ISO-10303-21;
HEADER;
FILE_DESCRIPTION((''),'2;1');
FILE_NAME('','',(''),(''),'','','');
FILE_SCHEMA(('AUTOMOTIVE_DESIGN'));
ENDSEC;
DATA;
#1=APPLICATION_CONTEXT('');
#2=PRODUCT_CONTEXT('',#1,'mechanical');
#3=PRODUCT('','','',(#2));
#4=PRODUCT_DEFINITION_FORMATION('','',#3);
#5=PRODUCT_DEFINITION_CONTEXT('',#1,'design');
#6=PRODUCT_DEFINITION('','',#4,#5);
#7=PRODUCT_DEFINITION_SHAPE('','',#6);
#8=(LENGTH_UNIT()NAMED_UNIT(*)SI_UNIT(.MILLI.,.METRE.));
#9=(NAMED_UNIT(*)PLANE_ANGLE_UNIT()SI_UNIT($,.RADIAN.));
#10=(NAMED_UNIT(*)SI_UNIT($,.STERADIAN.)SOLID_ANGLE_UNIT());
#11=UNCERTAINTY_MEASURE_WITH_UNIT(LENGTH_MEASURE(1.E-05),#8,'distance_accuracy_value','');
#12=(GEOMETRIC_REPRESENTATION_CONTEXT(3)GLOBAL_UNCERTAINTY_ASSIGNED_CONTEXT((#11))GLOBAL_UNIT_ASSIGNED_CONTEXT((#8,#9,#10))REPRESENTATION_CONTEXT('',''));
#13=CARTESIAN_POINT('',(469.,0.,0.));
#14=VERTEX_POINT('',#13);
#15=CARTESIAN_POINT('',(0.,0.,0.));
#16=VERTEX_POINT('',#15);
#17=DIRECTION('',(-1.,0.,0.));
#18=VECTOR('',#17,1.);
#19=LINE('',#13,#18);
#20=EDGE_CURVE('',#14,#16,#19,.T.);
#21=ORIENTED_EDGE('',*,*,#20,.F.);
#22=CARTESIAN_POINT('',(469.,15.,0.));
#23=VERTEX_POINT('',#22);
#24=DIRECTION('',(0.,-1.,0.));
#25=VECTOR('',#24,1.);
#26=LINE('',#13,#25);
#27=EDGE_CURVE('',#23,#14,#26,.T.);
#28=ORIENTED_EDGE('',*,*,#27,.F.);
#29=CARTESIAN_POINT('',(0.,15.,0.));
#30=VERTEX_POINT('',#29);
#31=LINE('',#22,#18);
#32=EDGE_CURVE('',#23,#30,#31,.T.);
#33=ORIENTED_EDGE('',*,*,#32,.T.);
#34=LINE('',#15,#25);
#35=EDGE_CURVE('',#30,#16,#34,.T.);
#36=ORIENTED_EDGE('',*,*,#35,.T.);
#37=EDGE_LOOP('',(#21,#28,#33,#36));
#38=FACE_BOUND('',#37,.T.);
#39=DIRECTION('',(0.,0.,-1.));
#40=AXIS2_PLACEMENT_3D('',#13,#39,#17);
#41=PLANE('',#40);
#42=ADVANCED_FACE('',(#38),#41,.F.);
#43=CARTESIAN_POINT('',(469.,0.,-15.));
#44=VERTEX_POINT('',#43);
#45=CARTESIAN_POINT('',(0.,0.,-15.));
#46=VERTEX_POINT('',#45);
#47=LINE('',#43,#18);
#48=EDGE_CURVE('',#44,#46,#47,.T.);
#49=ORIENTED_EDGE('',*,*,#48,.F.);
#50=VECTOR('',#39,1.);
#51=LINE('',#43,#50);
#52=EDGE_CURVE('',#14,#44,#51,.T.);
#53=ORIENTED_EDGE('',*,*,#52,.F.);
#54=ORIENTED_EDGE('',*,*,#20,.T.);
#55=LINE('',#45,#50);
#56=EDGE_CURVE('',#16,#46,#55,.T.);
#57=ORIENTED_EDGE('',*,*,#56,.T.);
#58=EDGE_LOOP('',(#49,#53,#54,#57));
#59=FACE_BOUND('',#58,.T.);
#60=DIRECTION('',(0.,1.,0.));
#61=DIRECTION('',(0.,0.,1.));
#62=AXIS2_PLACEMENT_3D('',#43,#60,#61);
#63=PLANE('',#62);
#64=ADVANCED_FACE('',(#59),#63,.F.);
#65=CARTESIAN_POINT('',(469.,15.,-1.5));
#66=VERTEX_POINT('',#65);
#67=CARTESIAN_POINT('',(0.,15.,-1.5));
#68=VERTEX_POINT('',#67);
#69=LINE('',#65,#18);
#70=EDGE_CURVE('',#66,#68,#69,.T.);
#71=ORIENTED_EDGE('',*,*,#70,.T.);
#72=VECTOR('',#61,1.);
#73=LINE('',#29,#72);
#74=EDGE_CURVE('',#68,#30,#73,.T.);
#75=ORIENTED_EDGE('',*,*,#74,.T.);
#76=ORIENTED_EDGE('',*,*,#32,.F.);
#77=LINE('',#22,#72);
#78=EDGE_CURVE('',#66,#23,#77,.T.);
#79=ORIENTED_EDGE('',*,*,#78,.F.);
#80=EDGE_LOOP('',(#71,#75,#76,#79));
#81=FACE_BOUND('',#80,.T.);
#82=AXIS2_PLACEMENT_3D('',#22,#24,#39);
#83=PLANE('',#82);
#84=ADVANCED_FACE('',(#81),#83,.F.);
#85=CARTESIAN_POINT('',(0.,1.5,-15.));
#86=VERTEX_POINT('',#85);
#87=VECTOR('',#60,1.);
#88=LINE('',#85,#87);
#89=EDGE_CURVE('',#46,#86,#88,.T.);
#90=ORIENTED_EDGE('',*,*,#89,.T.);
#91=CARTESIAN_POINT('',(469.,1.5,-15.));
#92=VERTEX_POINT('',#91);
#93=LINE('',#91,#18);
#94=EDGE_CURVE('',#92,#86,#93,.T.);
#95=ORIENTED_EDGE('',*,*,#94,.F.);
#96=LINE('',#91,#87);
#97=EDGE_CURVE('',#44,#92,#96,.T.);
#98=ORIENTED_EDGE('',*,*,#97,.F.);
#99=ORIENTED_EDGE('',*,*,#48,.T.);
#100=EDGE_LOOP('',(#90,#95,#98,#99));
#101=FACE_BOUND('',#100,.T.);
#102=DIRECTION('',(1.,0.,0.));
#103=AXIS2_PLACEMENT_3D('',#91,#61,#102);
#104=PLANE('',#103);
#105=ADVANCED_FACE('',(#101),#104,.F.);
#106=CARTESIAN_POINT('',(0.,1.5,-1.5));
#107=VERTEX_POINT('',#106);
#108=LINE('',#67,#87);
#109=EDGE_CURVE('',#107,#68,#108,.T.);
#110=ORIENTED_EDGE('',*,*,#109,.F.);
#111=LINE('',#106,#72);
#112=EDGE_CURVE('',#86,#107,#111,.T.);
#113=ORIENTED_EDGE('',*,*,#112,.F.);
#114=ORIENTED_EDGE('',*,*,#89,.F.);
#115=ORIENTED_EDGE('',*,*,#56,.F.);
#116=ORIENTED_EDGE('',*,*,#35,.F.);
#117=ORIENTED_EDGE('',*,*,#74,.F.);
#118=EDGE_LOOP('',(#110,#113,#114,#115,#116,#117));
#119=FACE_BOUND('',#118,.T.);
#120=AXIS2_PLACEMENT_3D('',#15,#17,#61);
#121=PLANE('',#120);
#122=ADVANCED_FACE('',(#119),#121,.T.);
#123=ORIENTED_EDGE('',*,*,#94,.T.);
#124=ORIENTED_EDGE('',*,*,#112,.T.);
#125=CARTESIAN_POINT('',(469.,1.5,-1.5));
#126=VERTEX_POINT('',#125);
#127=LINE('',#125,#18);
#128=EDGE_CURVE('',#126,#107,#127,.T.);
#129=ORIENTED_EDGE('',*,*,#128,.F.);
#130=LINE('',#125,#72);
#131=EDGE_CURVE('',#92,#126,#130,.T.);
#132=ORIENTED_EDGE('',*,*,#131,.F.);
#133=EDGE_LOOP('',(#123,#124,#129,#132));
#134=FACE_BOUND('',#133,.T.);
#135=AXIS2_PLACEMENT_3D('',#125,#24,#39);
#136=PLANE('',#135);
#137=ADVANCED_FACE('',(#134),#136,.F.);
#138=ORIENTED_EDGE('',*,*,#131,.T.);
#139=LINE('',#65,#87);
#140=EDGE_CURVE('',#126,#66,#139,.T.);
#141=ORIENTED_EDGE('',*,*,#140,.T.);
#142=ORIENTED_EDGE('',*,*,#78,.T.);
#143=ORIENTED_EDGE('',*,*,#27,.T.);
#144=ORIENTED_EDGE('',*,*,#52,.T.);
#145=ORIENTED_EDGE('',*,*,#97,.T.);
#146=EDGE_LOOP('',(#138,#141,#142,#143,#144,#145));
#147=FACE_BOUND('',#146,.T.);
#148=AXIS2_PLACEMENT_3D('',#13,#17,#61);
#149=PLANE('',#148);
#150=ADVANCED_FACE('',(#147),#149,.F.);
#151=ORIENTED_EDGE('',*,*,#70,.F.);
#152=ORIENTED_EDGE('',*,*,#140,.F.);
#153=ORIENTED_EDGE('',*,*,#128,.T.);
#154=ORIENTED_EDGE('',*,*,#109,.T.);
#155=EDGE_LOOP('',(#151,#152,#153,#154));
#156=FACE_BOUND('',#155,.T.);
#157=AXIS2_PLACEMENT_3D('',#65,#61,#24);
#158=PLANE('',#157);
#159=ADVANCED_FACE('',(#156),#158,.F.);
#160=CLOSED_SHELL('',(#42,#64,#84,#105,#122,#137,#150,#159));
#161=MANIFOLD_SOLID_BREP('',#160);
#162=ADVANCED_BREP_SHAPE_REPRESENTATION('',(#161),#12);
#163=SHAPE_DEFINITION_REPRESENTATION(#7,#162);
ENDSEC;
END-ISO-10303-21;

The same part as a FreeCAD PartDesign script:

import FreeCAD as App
import Part
import Sketcher
from FreeCAD import Vector
Q = App.Units.Quantity

doc = App.newDocument("Part")
body = doc.addObject("PartDesign::Body", "Body")

# Sketch on YZ plane
sketch1 = doc.addObject("Sketcher::SketchObject", "Sketch")
body.addObject(sketch1)
sketch1.AttachmentSupport = (doc.YZ_Plane, [""])
sketch1.MapMode = "FlatFace"
sketch1.addGeometry([
    Part.LineSegment(Vector(15, 0, 0), Vector(0, 0, 0)),  # 0
    Part.LineSegment(Vector(0, 0, 0), Vector(0, -15, 0)),  # 1
    Part.LineSegment(Vector(0, -15, 0), Vector(1.5, -15, 0)),  # 2
    Part.LineSegment(Vector(1.5, -15, 0), Vector(1.5, -1.5, 0)),  # 3
    Part.LineSegment(Vector(1.5, -1.5, 0), Vector(15, -1.5, 0)),  # 4
    Part.LineSegment(Vector(15, -1.5, 0), Vector(15, 0, 0)),  # 5
], False)
sketch1.addConstraint([
    Sketcher.Constraint("Coincident", 0, 2, 1, 1),
    Sketcher.Constraint("Coincident", 1, 2, 2, 1),
    Sketcher.Constraint("Coincident", 2, 2, 3, 1),
    Sketcher.Constraint("Coincident", 3, 2, 4, 1),
    Sketcher.Constraint("Coincident", 4, 2, 5, 1),
    Sketcher.Constraint("Coincident", 5, 2, 0, 1),
    Sketcher.Constraint("Horizontal", 0),
    Sketcher.Constraint("Vertical", 1),
    Sketcher.Constraint("Horizontal", 2),
    Sketcher.Constraint("Vertical", 3),
    Sketcher.Constraint("Horizontal", 4),
    Sketcher.Constraint("Vertical", 5),
    Sketcher.Constraint("Coincident", 0, 2, -1, 1),
    Sketcher.Constraint("Equal", 0, 1),
    Sketcher.Constraint("Equal", 4, 3),
    Sketcher.Constraint("DistanceX", 0, 2, 0, 1, Q("15 mm")),
    Sketcher.Constraint("DistanceX", 2, 1, 2, 2, Q("1.5 mm")),
])
pad1 = doc.addObject("PartDesign::Pad", "Pad")
body.addObject(pad1)
pad1.Profile = sketch1
pad1.Length = 469

doc.recompute()
